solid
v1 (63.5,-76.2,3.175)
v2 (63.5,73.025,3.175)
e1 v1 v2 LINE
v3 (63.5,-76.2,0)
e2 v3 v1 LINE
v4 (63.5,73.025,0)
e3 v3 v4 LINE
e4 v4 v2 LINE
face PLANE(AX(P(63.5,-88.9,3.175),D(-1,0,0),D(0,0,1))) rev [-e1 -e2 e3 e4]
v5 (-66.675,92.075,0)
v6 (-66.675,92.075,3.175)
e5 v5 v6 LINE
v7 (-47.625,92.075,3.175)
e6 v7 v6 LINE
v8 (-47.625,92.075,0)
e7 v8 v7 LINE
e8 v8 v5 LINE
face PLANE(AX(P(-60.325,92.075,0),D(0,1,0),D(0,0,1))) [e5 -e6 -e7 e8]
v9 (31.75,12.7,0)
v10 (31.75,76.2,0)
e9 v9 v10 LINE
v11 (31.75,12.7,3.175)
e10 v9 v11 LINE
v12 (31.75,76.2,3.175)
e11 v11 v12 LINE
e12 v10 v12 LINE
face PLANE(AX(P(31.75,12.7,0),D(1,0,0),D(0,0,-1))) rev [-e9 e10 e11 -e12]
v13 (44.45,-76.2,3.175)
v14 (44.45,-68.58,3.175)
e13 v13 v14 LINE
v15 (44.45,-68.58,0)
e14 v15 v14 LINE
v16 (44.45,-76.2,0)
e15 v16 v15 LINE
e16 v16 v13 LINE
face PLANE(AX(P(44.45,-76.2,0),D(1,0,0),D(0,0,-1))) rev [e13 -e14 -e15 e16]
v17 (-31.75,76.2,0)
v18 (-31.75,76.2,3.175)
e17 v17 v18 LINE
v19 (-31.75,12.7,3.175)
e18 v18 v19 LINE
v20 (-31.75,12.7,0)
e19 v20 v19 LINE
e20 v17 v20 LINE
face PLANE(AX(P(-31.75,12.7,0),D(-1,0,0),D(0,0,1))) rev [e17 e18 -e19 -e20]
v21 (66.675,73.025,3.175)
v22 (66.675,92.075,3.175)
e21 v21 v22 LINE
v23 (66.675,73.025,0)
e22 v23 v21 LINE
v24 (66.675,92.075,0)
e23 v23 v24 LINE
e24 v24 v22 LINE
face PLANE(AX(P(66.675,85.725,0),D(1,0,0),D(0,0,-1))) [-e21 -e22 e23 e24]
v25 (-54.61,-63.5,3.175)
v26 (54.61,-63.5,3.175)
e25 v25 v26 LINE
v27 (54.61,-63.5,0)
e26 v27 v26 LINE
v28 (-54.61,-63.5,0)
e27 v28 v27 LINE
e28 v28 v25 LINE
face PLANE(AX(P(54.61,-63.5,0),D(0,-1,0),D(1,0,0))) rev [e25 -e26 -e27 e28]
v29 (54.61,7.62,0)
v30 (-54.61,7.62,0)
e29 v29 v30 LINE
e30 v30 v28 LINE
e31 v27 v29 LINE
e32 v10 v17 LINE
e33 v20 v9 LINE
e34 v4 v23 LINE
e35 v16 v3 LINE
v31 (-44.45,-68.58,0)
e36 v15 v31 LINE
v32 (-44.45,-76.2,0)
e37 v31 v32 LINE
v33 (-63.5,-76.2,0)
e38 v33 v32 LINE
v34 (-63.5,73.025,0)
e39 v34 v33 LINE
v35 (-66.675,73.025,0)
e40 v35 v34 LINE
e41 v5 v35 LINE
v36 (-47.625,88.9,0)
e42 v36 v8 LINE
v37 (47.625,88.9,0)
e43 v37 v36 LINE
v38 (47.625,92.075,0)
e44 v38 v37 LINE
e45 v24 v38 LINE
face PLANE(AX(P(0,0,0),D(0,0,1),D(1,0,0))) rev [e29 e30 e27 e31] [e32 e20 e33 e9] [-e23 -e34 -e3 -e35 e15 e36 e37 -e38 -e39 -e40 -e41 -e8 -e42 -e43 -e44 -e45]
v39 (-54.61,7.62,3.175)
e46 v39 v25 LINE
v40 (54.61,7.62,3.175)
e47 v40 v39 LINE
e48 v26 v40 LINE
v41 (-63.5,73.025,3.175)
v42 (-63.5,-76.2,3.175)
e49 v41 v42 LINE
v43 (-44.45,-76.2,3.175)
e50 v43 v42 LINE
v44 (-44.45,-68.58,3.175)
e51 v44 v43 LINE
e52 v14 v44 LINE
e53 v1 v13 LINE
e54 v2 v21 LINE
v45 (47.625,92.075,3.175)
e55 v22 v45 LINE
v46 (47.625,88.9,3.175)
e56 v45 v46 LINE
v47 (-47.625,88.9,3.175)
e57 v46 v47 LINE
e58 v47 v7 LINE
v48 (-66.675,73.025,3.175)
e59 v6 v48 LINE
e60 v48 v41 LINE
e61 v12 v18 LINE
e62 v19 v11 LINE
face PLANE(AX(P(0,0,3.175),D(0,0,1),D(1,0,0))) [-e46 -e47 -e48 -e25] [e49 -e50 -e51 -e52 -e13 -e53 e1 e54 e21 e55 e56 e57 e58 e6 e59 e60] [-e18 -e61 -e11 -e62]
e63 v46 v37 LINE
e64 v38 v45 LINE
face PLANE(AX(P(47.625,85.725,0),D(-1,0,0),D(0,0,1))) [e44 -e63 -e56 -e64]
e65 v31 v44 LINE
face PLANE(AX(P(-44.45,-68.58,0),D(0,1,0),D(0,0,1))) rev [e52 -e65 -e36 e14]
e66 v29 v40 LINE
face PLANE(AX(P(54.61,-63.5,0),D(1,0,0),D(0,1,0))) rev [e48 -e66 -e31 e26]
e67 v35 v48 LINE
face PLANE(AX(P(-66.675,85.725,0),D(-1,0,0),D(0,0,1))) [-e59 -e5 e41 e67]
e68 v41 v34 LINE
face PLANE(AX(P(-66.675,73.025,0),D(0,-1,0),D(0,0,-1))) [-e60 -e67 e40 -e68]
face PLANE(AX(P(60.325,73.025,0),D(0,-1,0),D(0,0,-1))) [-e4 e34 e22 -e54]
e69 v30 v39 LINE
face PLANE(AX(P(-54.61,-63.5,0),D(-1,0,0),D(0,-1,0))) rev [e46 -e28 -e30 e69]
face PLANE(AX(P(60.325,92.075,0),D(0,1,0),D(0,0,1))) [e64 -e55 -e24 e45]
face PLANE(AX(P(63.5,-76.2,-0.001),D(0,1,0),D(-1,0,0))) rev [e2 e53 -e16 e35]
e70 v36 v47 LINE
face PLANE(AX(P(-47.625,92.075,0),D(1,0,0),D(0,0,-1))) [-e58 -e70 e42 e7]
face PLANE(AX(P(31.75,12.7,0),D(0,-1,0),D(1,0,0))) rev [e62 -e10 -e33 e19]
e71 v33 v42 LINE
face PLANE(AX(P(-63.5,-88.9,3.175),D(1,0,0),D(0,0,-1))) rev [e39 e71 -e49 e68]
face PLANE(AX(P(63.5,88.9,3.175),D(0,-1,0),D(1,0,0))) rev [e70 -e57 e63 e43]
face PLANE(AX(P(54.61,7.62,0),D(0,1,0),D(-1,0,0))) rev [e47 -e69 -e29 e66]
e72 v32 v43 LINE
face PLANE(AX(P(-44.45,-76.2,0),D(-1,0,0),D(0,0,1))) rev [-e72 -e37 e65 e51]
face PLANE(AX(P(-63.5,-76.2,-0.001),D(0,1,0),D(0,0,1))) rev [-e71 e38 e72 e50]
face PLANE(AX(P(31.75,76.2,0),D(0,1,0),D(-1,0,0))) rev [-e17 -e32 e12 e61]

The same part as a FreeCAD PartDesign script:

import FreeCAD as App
import Part
import Sketcher
Q = App.Units.Quantity


def add_polygon(sketch, points):
    """Adds a closed chain of lines whose ends are joined by coincident constraints."""
    first, n = sketch.GeometryCount, len(points)
    for a, b in zip(points, points[1:] + points[:1]):
        sketch.addGeometry(Part.LineSegment(App.Vector(*a, 0), App.Vector(*b, 0)), False)
    for i in range(n):
        sketch.addConstraint(Sketcher.Constraint("Coincident", first + i, 2, first + (i + 1) % n, 1))

doc = App.newDocument("Part")
params = doc.addObject("Spreadsheet::Sheet", "Params")
for row, (alias, value) in enumerate([
    ("sketch1_width", "5 in"),
    ("sketch1_height", "7 in"),
    ("pad1_length", "0.125 in"),
    ("sketch2_width", "2.5 in"),
    ("sketch2_width2", "4.3 in"),
    ("sketch2_height", "2.8 in"),
    ("sketch3_width", "0.5 in"),
    ("sketch3_width2", "0.25 in"),
    ("pad2_length", "0.125 in"),
    ("sketch4_height", "0.5 in"),
    ("sketch4_width", "0.75 in"),
    ("sketch5_height", "0.5 in"),
    ("sketch5_width", "0.75 in"),
    ("sketch6_width", "3.5 in"),
    ("sketch6_height", "0.8 in"),
], start=1):
    params.set(f"A{row}", alias)
    params.set(f"B{row}", "=" + value)
    params.setAlias(f"B{row}", alias)

body = doc.addObject("PartDesign::Body", "Body")

sketch1 = doc.addObject("Sketcher::SketchObject", "Sketch")
body.addObject(sketch1)
sketch1.AttachmentSupport = (doc.XY_Plane, [""])
sketch1.MapMode = "FlatFace"
add_polygon(sketch1, [(-64, 89), (-64, -89), (64, -89), (64, 89)])
sketch1.addConstraint([
    Sketcher.Constraint("Vertical", 0),
    Sketcher.Constraint("Horizontal", 1),
    Sketcher.Constraint("Vertical", 2),
    Sketcher.Constraint("Horizontal", 3),
    Sketcher.Constraint("Symmetric", 0, 2, 2, 2, -1, 1),
    Sketcher.Constraint("DistanceX", 1, 1, 1, 2, Q("5 in")),
    Sketcher.Constraint("DistanceY", 0, 2, 0, 1, Q("7 in")),
])
sketch1.setExpression("Constraints[9]", "Params.sketch1_width")
sketch1.setExpression("Constraints[10]", "Params.sketch1_height")
pad1 = doc.addObject("PartDesign::Pad", "Pad")
body.addObject(pad1)
pad1.Profile = sketch1
pad1.setExpression("Length", "Params.pad1_length")

sketch2 = doc.addObject("Sketcher::SketchObject", "Sketch001")
body.addObject(sketch2)
sketch2.AttachmentSupport = (doc.XY_Plane, [""])
sketch2.MapMode = "FlatFace"
sketch2.AttachmentOffset = App.Placement(App.Vector(0, 0, 0.125 * 25.4), App.Rotation())
add_polygon(sketch2, [(-32, 76), (-32, 13), (32, 13), (32, 76)])
add_polygon(sketch2, [(-55, 8), (-55, -64), (55, -64), (55, 8)])
sketch2.addConstraint([
    Sketcher.Constraint("Vertical", 0),
    Sketcher.Constraint("Horizontal", 1),
    Sketcher.Constraint("Vertical", 2),
    Sketcher.Constraint("Horizontal", 3),
    Sketcher.Constraint("Vertical", 4),
    Sketcher.Constraint("Horizontal", 5),
    Sketcher.Constraint("Vertical", 6),
    Sketcher.Constraint("Horizontal", 7),
    Sketcher.Constraint("Equal", 3, 0),
    Sketcher.Constraint("DistanceX", 1, 1, 1, 2, Q("2.5 in")),
    Sketcher.Constraint("DistanceX", 5, 1, 5, 2, Q("4.3 in")),
    Sketcher.Constraint("DistanceY", 4, 2, 4, 1, Q("2.8 in")),
    Sketcher.Constraint("DistanceY", -1, 1, 2, 2, Q("3 in")),
    Sketcher.Constraint("DistanceY", 4, 2, 0, 2, Q("3 in")),
    Sketcher.Constraint("DistanceX", 4, 2, 0, 2, Q("0.9 in")),
    Sketcher.Constraint("DistanceX", 0, 2, -1, 1, Q("1.25 in")),
])
sketch2.setExpression("Constraints[17]", "Params.sketch2_width")
sketch2.setExpression("Constraints[18]", "Params.sketch2_width2")
sketch2.setExpression("Constraints[19]", "Params.sketch2_height")
pocket1 = doc.addObject("PartDesign::Pocket", "Pocket")
body.addObject(pocket1)
pocket1.Profile = sketch2
pocket1.Type = "ThroughAll"

sketch3 = doc.addObject("Sketcher::SketchObject", "Sketch002")
body.addObject(sketch3)
sketch3.AttachmentSupport = (doc.XY_Plane, [""])
sketch3.MapMode = "FlatFace"
sketch3.AttachmentOffset = App.Placement(App.Vector(0, 0, 0.125 * 25.4), App.Rotation())
add_polygon(sketch3, [(-67, 92), (-67, 73), (-60, 73), (-60, 86), (-48, 86), (-48, 92)])
add_polygon(sketch3, [(67, 92), (48, 92), (48, 86), (60, 86), (60, 73), (67, 73)])
sketch3.addConstraint([
    Sketcher.Constraint("Vertical", 0),
    Sketcher.Constraint("Horizontal", 1),
    Sketcher.Constraint("Vertical", 2),
    Sketcher.Constraint("Horizontal", 3),
    Sketcher.Constraint("Vertical", 4),
    Sketcher.Constraint("Horizontal", 5),
    Sketcher.Constraint("Horizontal", 6),
    Sketcher.Constraint("Vertical", 7),
    Sketcher.Constraint("Horizontal", 8),
    Sketcher.Constraint("Vertical", 9),
    Sketcher.Constraint("Horizontal", 10),
    Sketcher.Constraint("Vertical", 11),
    Sketcher.Constraint("Symmetric", 4, 2, 6, 2, -2),
    Sketcher.Constraint("Symmetric", 2, 2, 8, 2, -2),
    Sketcher.Constraint("Symmetric", 0, 2, 10, 2, -2),
    Sketcher.Constraint("Equal", 6, 0),
    Sketcher.Constraint("Equal", 8, 2),
    Sketcher.Constraint("DistanceX", 3, 1, 3, 2, Q("0.5 in")),
    Sketcher.Constraint("DistanceX", 1, 1, 1, 2, Q("0.25 in")),
    Sketcher.Constraint("DistanceX", 5, 2, 6, 2, Q("4.5 in")),
    Sketcher.Constraint("DistanceY", -1, 1, 0, 2, Q("2.875 in")),
])
sketch3.setExpression("Constraints[29]", "Params.sketch3_width")
sketch3.setExpression("Constraints[30]", "Params.sketch3_width2")
pad2 = doc.addObject("PartDesign::Pad", "Pad001")
body.addObject(pad2)
pad2.Profile = sketch3
pad2.setExpression("Length", "Params.pad2_length")
pad2.Reversed = True

sketch4 = doc.addObject("Sketcher::SketchObject", "Sketch003")
body.addObject(sketch4)
sketch4.AttachmentSupport = (doc.XY_Plane, [""])
sketch4.MapMode = "FlatFace"
sketch4.AttachmentOffset = App.Placement(App.Vector(0, 0, 0.125 * 25.4), App.Rotation())
add_polygon(sketch4, [(-64, -76), (-64, -89), (-44, -89), (-44, -76)])
sketch4.addConstraint([
    Sketcher.Constraint("Vertical", 0),
    Sketcher.Constraint("Horizontal", 1),
    Sketcher.Constraint("Vertical", 2),
    Sketcher.Constraint("Horizontal", 3),
    Sketcher.Constraint("DistanceY", 0, 2, 0, 1, Q("0.5 in")),
    Sketcher.Constraint("DistanceY", 2, 2, -1, 1, Q("3 in")),
    Sketcher.Constraint("DistanceX", 1, 1, 1, 2, Q("0.75 in")),
    Sketcher.Constraint("DistanceX", 0, 2, -1, 1, Q("2.5 in")),
])
sketch4.setExpression("Constraints[8]", "Params.sketch4_height")
sketch4.setExpression("Constraints[10]", "Params.sketch4_width")
pocket2 = doc.addObject("PartDesign::Pocket", "Pocket001")
body.addObject(pocket2)
pocket2.Profile = sketch4
pocket2.Type = "UpToFirst"

sketch5 = doc.addObject("Sketcher::SketchObject", "Sketch004")
body.addObject(sketch5)
sketch5.AttachmentSupport = (doc.XY_Plane, [""])
sketch5.MapMode = "FlatFace"
sketch5.AttachmentOffset = App.Placement(App.Vector(0, 0, 0.125 * 25.4), App.Rotation())
add_polygon(sketch5, [(44, -76), (44, -89), (64, -89), (64, -76)])
sketch5.addConstraint([
    Sketcher.Constraint("Vertical", 0),
    Sketcher.Constraint("Horizontal", 1),
    Sketcher.Constraint("Vertical", 2),
    Sketcher.Constraint("Horizontal", 3),
    Sketcher.Constraint("DistanceY", 0, 2, 0, 1, Q("0.5 in")),
    Sketcher.Constraint("DistanceY", 2, 2, -1, 1, Q("3 in")),
    Sketcher.Constraint("DistanceX", 1, 1, 1, 2, Q("0.75 in")),
    Sketcher.Constraint("DistanceX", -1, 1, 1, 2, Q("2.5 in")),
])
sketch5.setExpression("Constraints[8]", "Params.sketch5_height")
sketch5.setExpression("Constraints[10]", "Params.sketch5_width")
pocket3 = doc.addObject("PartDesign::Pocket", "Pocket002")
body.addObject(pocket3)
pocket3.Profile = sketch5
pocket3.Type = "UpToFirst"

sketch6 = doc.addObject("Sketcher::SketchObject", "Sketch005")
body.addObject(sketch6)
sketch6.AttachmentSupport = (doc.XY_Plane, [""])
sketch6.MapMode = "FlatFace"
sketch6.AttachmentOffset = App.Placement(App.Vector(0, 0, 0.125 * 25.4), App.Rotation())
add_polygon(sketch6, [(-44, -69), (-44, -89), (44, -89), (44, -69)])
sketch6.addConstraint([
    Sketcher.Constraint("Vertical", 0),
    Sketcher.Constraint("Horizontal", 1),
    Sketcher.Constraint("Vertical", 2),
    Sketcher.Constraint("Horizontal", 3),
    Sketcher.Constraint("DistanceX", 1, 1, 1, 2, Q("3.5 in")),
    Sketcher.Constraint("DistanceY", 0, 2, 0, 1, Q("0.8 in")),
    Sketcher.Constraint("DistanceY", 0, 2, -1, 1, Q("3.5 in")),
    Sketcher.Constraint("DistanceX", 0, 2, -1, 1, Q("1.75 in")),
])
sketch6.setExpression("Constraints[8]", "Params.sketch6_width")
sketch6.setExpression("Constraints[9]", "Params.sketch6_height")
pocket4 = doc.addObject("PartDesign::Pocket", "Pocket003")
body.addObject(pocket4)
pocket4.Profile = sketch6
pocket4.Type = "ThroughAll"

doc.recompute()
